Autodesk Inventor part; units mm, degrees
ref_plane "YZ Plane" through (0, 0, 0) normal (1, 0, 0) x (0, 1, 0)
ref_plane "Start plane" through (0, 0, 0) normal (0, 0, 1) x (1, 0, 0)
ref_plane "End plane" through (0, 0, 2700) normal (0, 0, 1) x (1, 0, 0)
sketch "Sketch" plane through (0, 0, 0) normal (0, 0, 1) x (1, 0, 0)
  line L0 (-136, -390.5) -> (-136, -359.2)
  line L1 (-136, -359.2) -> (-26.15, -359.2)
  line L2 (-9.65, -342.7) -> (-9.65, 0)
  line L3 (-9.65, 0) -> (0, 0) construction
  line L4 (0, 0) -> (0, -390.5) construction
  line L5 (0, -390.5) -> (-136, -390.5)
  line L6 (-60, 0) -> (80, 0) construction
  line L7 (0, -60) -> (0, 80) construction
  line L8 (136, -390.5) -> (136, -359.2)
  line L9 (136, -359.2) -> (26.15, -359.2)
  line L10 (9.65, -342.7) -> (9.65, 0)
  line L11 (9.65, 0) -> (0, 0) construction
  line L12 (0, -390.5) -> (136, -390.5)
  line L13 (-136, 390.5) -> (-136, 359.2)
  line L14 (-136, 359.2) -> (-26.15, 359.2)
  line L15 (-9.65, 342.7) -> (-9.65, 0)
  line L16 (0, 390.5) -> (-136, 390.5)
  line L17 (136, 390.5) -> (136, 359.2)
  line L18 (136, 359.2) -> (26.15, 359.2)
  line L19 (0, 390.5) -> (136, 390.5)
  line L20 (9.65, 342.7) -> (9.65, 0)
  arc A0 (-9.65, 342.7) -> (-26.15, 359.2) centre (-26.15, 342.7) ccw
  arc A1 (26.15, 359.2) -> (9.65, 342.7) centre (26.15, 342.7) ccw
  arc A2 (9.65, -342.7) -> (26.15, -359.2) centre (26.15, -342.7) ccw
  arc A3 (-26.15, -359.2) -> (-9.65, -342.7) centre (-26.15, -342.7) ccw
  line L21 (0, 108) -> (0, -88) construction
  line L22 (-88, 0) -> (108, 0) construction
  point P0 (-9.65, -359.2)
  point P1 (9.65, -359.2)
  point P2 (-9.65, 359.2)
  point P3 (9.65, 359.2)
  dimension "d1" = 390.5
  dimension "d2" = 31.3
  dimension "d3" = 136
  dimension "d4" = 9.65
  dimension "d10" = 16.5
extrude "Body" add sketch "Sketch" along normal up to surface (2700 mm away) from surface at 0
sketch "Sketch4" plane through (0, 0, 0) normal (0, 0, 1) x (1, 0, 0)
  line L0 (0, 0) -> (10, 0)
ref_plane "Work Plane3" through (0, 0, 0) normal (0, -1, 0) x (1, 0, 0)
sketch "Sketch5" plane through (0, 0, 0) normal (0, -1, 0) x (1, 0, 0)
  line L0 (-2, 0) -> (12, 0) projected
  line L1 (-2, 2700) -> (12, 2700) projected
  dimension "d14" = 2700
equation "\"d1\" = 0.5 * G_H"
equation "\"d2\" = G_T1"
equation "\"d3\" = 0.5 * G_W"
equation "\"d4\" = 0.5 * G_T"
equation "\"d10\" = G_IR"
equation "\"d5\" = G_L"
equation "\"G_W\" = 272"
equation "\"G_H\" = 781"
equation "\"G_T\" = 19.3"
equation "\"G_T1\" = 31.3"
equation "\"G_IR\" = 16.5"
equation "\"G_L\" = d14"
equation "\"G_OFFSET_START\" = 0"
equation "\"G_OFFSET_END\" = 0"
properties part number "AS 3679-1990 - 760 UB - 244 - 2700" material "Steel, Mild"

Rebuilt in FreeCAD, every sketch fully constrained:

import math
import FreeCAD as App
import Part
import Sketcher

V = App.Vector
Q = App.Units.Quantity

doc = App.newDocument("Part")
params = doc.addObject("Spreadsheet::Sheet", "Params")
for row, (alias, value) in enumerate([
    ("sketch1_radius", "16.5 mm"),
    ("sketch1_height", "31.3 mm"),
    ("pad1_length", "2700 mm"),
], start=1):
    params.set(f"A{row}", alias)
    params.set(f"B{row}", "=" + value)
    params.setAlias(f"B{row}", alias)

body = doc.addObject("PartDesign::Body", "Body")

# Sketch on XY plane
sketch1 = body.newObject("Sketcher::SketchObject", "Sketch")
sketch1.AttachmentSupport = (doc.getObject("XY_Plane"), [""])
sketch1.MapMode = "FlatFace"
sketch1.addGeometry(Part.LineSegment(V(-136, -359.2, 0), V(-136, -390.5, 0)), False)
sketch1.addGeometry(Part.LineSegment(V(-136, -390.5, 0), V(136, -390.5, 0)), False)
sketch1.addGeometry(Part.LineSegment(V(136, -390.5, 0), V(136, -359.2, 0)), False)
sketch1.addGeometry(Part.LineSegment(V(136, -359.2, 0), V(26.15, -359.2, 0)), False)
sketch1.addGeometry(Part.ArcOfCircle(Part.Circle(V(26.15, -342.7, 0), V(0, 0, 1), 16.5), math.radians(180), math.radians(270)), False)
sketch1.addGeometry(Part.LineSegment(V(9.65, -342.7, 0), V(9.65, 342.7, 0)), False)
sketch1.addGeometry(Part.ArcOfCircle(Part.Circle(V(26.15, 342.7, 0), V(0, 0, 1), 16.5), math.radians(90), math.radians(180)), False)
sketch1.addGeometry(Part.LineSegment(V(26.15, 359.2, 0), V(136, 359.2, 0)), False)
sketch1.addGeometry(Part.LineSegment(V(136, 359.2, 0), V(136, 390.5, 0)), False)
sketch1.addGeometry(Part.LineSegment(V(136, 390.5, 0), V(-136, 390.5, 0)), False)
sketch1.addGeometry(Part.LineSegment(V(-136, 390.5, 0), V(-136, 359.2, 0)), False)
sketch1.addGeometry(Part.LineSegment(V(-136, 359.2, 0), V(-26.15, 359.2, 0)), False)
sketch1.addGeometry(Part.ArcOfCircle(Part.Circle(V(-26.15, 342.7, 0), V(0, 0, 1), 16.5), math.radians(0), math.radians(90)), False)
sketch1.addGeometry(Part.LineSegment(V(-9.65, 342.7, 0), V(-9.65, -342.7, 0)), False)
sketch1.addGeometry(Part.ArcOfCircle(Part.Circle(V(-26.15, -342.7, 0), V(0, 0, 1), 16.5), math.radians(-90), math.radians(0)), False)
sketch1.addGeometry(Part.LineSegment(V(-26.15, -359.2, 0), V(-136, -359.2, 0)), False)
sketch1.addConstraint(Sketcher.Constraint("Coincident", 0, 2, 1, 1))
sketch1.addConstraint(Sketcher.Constraint("Coincident", 1, 2, 2, 1))
sketch1.addConstraint(Sketcher.Constraint("Coincident", 2, 2, 3, 1))
sketch1.addConstraint(Sketcher.Constraint("Tangent", 3, 2, 4, 2))
sketch1.addConstraint(Sketcher.Constraint("Tangent", 4, 1, 5, 1))
sketch1.addConstraint(Sketcher.Constraint("Tangent", 5, 2, 6, 2))
sketch1.addConstraint(Sketcher.Constraint("Tangent", 6, 1, 7, 1))
sketch1.addConstraint(Sketcher.Constraint("Coincident", 7, 2, 8, 1))
sketch1.addConstraint(Sketcher.Constraint("Coincident", 8, 2, 9, 1))
sketch1.addConstraint(Sketcher.Constraint("Coincident", 9, 2, 10, 1))
sketch1.addConstraint(Sketcher.Constraint("Coincident", 10, 2, 11, 1))
sketch1.addConstraint(Sketcher.Constraint("Tangent", 11, 2, 12, 2))
sketch1.addConstraint(Sketcher.Constraint("Tangent", 12, 1, 13, 1))
sketch1.addConstraint(Sketcher.Constraint("Tangent", 13, 2, 14, 2))
sketch1.addConstraint(Sketcher.Constraint("Tangent", 14, 1, 15, 1))
sketch1.addConstraint(Sketcher.Constraint("Coincident", 15, 2, 0, 1))
sketch1.addConstraint(Sketcher.Constraint("Vertical", 0))
sketch1.addConstraint(Sketcher.Constraint("Horizontal", 1))
sketch1.addConstraint(Sketcher.Constraint("Vertical", 2))
sketch1.addConstraint(Sketcher.Constraint("Horizontal", 3))
sketch1.addConstraint(Sketcher.Constraint("Vertical", 5))
sketch1.addConstraint(Sketcher.Constraint("Horizontal", 7))
sketch1.addConstraint(Sketcher.Constraint("Vertical", 8))
sketch1.addConstraint(Sketcher.Constraint("Horizontal", 9))
sketch1.addConstraint(Sketcher.Constraint("Vertical", 10))
sketch1.addConstraint(Sketcher.Constraint("Horizontal", 11))
sketch1.addConstraint(Sketcher.Constraint("Vertical", 13))
sketch1.addConstraint(Sketcher.Constraint("Horizontal", 15))
sketch1.addConstraint(Sketcher.Constraint("Equal", 4, 6))
sketch1.addConstraint(Sketcher.Constraint("Equal", 6, 12))
sketch1.addConstraint(Sketcher.Constraint("Equal", 12, 14))
sketch1.addConstraint(Sketcher.Constraint("Symmetric", 4, 3, 12, 3, -1, 1))
sketch1.addConstraint(Sketcher.Constraint("Symmetric", 0, 2, 8, 2, -1, 1))
sketch1.addConstraint(Sketcher.Constraint("Symmetric", 7, 2, 10, 2, -2))
sketch1.addConstraint(Sketcher.Constraint("Symmetric", 2, 2, 15, 2, -2))
sketch1.addConstraint(Sketcher.Constraint("Radius", 4, Q("16.5 mm")))
sketch1.addConstraint(Sketcher.Constraint("DistanceY", 0, 2, 0, 1, Q("31.3 mm")))
sketch1.addConstraint(Sketcher.Constraint("DistanceX", 0, 2, -1, 1, Q("136 mm")))
sketch1.addConstraint(Sketcher.Constraint("DistanceY", 0, 2, -1, 1, Q("390.5 mm")))
sketch1.addConstraint(Sketcher.Constraint("DistanceX", -1, 1, 4, 1, Q("9.65 mm")))
sketch1.setExpression("Constraints[35]", "Params.sketch1_radius")
sketch1.setExpression("Constraints[36]", "Params.sketch1_height")
pad1 = body.newObject("PartDesign::Pad", "Pad")
pad1.Profile = sketch1
pad1.setExpression("Length", "Params.pad1_length")

doc.recompute()
